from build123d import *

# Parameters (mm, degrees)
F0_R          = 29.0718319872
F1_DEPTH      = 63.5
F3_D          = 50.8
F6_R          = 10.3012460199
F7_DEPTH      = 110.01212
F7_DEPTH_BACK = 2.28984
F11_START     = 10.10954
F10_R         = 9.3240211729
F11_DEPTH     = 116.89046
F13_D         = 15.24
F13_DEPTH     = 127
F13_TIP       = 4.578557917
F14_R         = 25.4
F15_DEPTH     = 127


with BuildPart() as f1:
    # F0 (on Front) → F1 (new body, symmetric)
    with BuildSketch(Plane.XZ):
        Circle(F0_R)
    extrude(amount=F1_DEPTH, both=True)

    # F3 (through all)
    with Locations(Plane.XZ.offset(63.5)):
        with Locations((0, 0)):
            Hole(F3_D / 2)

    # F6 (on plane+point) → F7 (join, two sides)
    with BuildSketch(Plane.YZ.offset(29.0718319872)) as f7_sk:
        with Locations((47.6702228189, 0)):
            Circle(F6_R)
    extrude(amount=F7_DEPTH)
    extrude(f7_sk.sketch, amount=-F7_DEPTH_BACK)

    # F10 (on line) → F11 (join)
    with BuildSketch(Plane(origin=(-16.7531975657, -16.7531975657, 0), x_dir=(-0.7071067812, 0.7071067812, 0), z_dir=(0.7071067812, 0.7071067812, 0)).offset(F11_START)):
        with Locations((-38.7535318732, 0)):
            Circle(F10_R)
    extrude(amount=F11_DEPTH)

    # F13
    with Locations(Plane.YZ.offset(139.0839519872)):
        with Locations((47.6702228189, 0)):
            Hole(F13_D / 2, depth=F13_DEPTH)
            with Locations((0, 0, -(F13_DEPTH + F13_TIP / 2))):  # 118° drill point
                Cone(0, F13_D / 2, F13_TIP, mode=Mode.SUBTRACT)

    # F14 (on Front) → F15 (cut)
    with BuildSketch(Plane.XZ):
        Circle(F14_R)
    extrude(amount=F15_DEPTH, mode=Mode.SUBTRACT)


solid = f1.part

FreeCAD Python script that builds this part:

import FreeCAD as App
import Part
import Sketcher
from FreeCAD import Vector
Q = App.Units.Quantity

doc = App.newDocument("Part")
body = doc.addObject("PartDesign::Body", "Body")

sketch1 = body.newObject("Sketcher::SketchObject", "Sketch")
sketch1.AttachmentSupport = (doc.getObject("XZ_Plane"), [""])
sketch1.MapMode = "FlatFace"
sketch1.addGeometry(Part.Circle(Vector(0, 0, 0), Vector(0, 0, 1), 29.071832), False)
sketch1.addConstraint(Sketcher.Constraint("Coincident", 0, 3, -1, 1))
sketch1.addConstraint(Sketcher.Constraint("Diameter", 0, Q("58.143664 mm")))
pad1 = body.newObject("PartDesign::Pad", "Pad")
pad1.Profile = sketch1
pad1.Length = Q("5 in")
pad1.Midplane = True

sketch2 = body.newObject("Sketcher::SketchObject", "Sketch001")
sketch2.AttachmentSupport = (doc.getObject("XZ_Plane"), [""])
sketch2.MapMode = "FlatFace"
sketch2.AttachmentOffset = App.Placement(Vector(0, 0, 2.5 * 25.4), App.Rotation())
sketch2.addGeometry(Part.Circle(Vector(0, 0, 0), Vector(0, 0, 1), 25.4), False)
sketch2.addConstraint(Sketcher.Constraint("Coincident", 0, 3, -1, 1))
sketch2.addConstraint(Sketcher.Constraint("Diameter", 0, Q("2 in")))
doc.recompute()
hole = body.newObject("PartDesign::Hole", "Hole")
hole.Profile = sketch2
hole.ThreadType = "None"
hole.Diameter = Q("2 in")
hole.DepthType = "ThroughAll"

sketch3 = body.newObject("Sketcher::SketchObject", "Sketch002")
sketch3.AttachmentSupport = (doc.getObject("YZ_Plane"), [""])
sketch3.MapMode = "FlatFace"
sketch3.AttachmentOffset = App.Placement(Vector(0, 0, 29.071832), App.Rotation())
sketch3.addGeometry(Part.Circle(Vector(47.670223, 0, 0), Vector(0, 0, 1), 10.301246), False)
sketch3.addConstraint(Sketcher.Constraint("PointOnObject", 0, 3, -1))
sketch3.addConstraint(Sketcher.Constraint("Diameter", 0, Q("20.602492 mm")))
sketch3.addConstraint(Sketcher.Constraint("DistanceX", -1, 1, 0, 3, Q("47.670223 mm")))
pad2 = body.newObject("PartDesign::Pad", "Pad001")
pad2.Profile = sketch3
pad2.Type = "TwoLengths"
pad2.Length = 110.01212
pad2.Length2 = 2.28984

sketch4 = body.newObject("Sketcher::SketchObject", "Sketch003")
sketch4.Placement = App.Placement(Vector(-9.604673, -9.604673, 0), App.Rotation(Vector(-0.707106781, 0.707106781, 0), Vector(0, 0, 0.999999999), Vector(0.707106781, 0.707106781, 0), "ZXY"))
sketch4.addGeometry(Part.Circle(Vector(-38.753532, 0, 0), Vector(0, 0, 1), 9.324021), False)
sketch4.addConstraint(Sketcher.Constraint("PointOnObject", 0, 3, -1))
sketch4.addConstraint(Sketcher.Constraint("Diameter", 0, Q("18.648042 mm")))
sketch4.addConstraint(Sketcher.Constraint("DistanceX", 0, 3, -1, 1, Q("38.753532 mm")))
pad3 = body.newObject("PartDesign::Pad", "Pad002")
pad3.Profile = sketch4
pad3.Length = 116.89046

sketch5 = body.newObject("Sketcher::SketchObject", "Sketch004")
sketch5.AttachmentSupport = (doc.getObject("YZ_Plane"), [""])
sketch5.MapMode = "FlatFace"
sketch5.AttachmentOffset = App.Placement(Vector(0, 0, 139.083952), App.Rotation())
sketch5.addGeometry(Part.Circle(Vector(47.670223, 0, 0), Vector(0, 0, 1), 7.62), False)
sketch5.addConstraint(Sketcher.Constraint("PointOnObject", 0, 3, -1))
sketch5.addConstraint(Sketcher.Constraint("Diameter", 0, Q("0.6 in")))
sketch5.addConstraint(Sketcher.Constraint("DistanceX", -1, 1, 0, 3, Q("47.670223 mm")))
doc.recompute()
hole2 = body.newObject("PartDesign::Hole", "Hole001")
hole2.Profile = sketch5
hole2.ThreadType = "None"
hole2.Diameter = Q("0.6 in")
hole2.DepthType = "Dimension"
hole2.Depth = Q("5 in")
hole2.DrillPoint = "Angled"
hole2.DrillPointAngle = 118

sketch6 = body.newObject("Sketcher::SketchObject", "Sketch005")
sketch6.AttachmentSupport = (doc.getObject("XZ_Plane"), [""])
sketch6.MapMode = "FlatFace"
sketch6.addGeometry(Part.Circle(Vector(0, 0, 0), Vector(0, 0, 1), 25.4), False)
sketch6.addConstraint(Sketcher.Constraint("Coincident", 0, 3, -1, 1))
sketch6.addConstraint(Sketcher.Constraint("Diameter", 0, Q("2 in")))
pocket1 = body.newObject("PartDesign::Pocket", "Pocket")
pocket1.Profile = sketch6
pocket1.Length = Q("5 in")
pocket1.Reversed = True

doc.recompute()
